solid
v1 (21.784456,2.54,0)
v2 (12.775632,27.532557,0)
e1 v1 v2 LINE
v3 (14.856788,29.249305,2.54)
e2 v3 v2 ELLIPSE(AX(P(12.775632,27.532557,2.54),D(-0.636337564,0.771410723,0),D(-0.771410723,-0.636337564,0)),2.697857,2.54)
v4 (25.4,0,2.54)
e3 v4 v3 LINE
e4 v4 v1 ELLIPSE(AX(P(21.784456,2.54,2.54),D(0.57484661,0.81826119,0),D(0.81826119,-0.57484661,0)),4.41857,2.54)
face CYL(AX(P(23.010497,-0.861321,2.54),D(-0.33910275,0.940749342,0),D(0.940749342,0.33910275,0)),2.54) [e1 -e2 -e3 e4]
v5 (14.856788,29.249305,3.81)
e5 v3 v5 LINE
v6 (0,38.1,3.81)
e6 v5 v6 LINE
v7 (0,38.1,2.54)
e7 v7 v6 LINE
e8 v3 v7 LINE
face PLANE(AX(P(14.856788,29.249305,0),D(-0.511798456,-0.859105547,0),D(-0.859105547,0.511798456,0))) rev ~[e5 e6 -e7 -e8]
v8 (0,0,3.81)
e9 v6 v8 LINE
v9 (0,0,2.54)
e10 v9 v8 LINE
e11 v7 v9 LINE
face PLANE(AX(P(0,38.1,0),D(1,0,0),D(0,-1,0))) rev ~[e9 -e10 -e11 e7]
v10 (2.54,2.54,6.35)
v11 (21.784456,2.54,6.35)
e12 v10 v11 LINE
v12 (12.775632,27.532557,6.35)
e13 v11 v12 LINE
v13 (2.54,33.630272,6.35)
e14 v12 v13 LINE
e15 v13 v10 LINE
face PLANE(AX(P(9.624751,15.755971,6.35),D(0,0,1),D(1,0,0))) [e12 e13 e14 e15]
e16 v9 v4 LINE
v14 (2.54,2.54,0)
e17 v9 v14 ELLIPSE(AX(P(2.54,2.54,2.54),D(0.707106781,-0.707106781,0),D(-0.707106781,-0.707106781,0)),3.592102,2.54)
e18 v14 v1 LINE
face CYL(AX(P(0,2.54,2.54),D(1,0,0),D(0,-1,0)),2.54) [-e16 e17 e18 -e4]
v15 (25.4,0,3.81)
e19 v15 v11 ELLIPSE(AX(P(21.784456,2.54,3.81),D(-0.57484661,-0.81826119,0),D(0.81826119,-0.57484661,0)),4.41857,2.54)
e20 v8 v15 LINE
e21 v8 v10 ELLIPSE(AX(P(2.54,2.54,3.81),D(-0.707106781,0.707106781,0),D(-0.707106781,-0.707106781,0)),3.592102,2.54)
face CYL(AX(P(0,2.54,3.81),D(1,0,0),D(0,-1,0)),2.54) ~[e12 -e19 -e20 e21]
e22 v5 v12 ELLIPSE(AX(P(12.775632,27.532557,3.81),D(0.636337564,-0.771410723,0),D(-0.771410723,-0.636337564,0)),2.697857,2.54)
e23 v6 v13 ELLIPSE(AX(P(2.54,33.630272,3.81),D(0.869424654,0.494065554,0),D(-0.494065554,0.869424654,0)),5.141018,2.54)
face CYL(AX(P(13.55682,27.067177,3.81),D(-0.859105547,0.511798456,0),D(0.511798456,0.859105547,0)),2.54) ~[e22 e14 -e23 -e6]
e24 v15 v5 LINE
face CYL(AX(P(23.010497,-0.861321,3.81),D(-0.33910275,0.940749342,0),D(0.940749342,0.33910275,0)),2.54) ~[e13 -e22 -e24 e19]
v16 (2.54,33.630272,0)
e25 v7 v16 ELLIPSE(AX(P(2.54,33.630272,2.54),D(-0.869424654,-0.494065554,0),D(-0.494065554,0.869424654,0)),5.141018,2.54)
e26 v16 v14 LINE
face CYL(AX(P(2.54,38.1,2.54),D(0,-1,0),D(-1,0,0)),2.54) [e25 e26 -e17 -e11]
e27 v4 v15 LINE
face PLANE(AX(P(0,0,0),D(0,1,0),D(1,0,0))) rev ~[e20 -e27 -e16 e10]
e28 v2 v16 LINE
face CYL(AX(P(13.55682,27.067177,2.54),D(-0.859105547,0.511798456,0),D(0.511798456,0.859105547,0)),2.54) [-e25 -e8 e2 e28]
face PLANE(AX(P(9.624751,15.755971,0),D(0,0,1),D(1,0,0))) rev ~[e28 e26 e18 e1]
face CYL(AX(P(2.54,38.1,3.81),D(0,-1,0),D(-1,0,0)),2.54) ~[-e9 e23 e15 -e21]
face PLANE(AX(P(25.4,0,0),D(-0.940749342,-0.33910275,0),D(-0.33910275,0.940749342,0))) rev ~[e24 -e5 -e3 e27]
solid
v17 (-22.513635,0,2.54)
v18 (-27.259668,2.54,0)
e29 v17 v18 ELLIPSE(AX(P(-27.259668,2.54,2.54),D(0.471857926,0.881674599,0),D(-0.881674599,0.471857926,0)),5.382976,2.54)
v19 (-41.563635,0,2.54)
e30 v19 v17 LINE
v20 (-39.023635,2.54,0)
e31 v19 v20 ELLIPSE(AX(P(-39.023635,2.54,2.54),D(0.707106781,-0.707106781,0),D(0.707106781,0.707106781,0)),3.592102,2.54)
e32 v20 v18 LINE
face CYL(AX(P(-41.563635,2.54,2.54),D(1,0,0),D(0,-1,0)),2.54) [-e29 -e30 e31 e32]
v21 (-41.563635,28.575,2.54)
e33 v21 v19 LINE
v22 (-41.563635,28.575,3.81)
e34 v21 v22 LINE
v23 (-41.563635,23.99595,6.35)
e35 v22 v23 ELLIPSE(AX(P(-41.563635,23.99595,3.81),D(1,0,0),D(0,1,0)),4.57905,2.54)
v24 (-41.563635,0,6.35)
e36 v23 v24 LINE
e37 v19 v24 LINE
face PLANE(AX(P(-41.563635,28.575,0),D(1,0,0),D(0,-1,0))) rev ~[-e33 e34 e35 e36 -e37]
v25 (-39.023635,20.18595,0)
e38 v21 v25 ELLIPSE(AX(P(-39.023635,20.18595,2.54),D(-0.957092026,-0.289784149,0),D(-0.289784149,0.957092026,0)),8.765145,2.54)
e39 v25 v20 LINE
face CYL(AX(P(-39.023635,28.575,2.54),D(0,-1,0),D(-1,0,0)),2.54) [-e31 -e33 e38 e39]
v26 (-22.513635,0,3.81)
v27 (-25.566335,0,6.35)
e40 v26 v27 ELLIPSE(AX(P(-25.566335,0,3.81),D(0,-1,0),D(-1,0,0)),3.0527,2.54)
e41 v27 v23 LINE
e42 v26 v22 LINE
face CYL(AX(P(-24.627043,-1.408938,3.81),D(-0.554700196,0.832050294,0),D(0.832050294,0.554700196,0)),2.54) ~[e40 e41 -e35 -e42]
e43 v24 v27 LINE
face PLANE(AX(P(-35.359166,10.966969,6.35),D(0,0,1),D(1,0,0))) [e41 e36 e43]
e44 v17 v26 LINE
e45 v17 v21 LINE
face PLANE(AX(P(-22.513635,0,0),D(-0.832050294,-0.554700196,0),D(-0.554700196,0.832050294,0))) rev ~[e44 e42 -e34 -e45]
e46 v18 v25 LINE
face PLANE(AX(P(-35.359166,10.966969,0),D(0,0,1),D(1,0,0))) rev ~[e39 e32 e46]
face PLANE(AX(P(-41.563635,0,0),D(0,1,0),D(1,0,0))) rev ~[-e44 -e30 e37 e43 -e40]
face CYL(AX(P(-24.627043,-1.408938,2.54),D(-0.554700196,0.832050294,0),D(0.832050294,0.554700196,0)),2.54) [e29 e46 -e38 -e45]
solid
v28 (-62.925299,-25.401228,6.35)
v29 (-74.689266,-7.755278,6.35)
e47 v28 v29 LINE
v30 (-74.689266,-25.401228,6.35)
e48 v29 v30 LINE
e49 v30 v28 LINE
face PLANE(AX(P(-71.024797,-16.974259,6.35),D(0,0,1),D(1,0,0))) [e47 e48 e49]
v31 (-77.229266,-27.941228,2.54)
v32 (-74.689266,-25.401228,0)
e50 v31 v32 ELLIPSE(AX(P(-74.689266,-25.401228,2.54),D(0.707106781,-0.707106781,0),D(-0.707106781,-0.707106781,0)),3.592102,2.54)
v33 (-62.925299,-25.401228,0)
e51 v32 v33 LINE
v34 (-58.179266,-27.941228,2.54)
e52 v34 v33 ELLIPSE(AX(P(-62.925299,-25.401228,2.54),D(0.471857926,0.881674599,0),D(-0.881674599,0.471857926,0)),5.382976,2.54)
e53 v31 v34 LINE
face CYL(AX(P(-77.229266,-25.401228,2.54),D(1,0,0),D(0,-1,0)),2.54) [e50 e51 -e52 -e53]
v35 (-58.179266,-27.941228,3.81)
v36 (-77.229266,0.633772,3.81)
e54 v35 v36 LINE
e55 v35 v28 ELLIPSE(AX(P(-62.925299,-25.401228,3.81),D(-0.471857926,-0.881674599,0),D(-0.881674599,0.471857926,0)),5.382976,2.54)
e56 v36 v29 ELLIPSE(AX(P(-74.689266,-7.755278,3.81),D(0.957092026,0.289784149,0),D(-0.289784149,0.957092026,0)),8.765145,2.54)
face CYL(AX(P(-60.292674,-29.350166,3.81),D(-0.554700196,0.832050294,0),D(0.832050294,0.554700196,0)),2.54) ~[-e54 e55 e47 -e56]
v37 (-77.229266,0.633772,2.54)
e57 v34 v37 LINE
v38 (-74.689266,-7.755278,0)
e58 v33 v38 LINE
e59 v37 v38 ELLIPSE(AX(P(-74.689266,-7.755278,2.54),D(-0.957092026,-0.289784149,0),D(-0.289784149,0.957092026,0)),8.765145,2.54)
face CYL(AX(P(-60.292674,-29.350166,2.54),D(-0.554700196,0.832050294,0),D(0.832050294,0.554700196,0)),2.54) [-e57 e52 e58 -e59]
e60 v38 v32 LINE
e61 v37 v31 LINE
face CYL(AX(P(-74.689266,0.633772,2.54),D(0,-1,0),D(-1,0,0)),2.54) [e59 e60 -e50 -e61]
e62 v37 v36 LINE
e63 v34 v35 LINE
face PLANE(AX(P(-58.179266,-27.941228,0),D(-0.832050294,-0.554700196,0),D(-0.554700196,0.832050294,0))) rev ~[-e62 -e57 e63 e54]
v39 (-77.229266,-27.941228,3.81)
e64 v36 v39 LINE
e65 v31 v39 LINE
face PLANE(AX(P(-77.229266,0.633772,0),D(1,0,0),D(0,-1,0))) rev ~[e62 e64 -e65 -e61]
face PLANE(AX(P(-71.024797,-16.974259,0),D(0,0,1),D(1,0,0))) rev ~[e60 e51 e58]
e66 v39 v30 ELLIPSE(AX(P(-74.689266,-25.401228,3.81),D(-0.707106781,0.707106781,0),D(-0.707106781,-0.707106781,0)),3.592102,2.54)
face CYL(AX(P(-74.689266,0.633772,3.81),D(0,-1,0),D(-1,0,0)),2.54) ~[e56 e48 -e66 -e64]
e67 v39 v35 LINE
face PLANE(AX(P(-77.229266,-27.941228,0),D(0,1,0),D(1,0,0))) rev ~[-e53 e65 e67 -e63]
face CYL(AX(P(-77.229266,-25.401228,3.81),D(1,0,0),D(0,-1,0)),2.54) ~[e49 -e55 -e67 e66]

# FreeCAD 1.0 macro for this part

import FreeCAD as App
import Part
import Sketcher
Q = App.Units.Quantity


def edges_at(feature, points):
    """Names of the edges that pass closest to the given points."""
    edges = feature.Shape.Edges
    near = lambda p: min(range(len(edges)), key=lambda i: edges[i].distToShape(Part.Vertex(*p))[0])
    return sorted({f"Edge{near(p) + 1}" for p in points})


def add_polygon(sketch, points):
    """Adds a closed chain of lines whose ends are joined by coincident constraints."""
    first, n = sketch.GeometryCount, len(points)
    for a, b in zip(points, points[1:] + points[:1]):
        sketch.addGeometry(Part.LineSegment(App.Vector(*a, 0), App.Vector(*b, 0)), False)
    for i in range(n):
        sketch.addConstraint(Sketcher.Constraint("Coincident", first + i, 2, first + (i + 1) % n, 1))

doc = App.newDocument("Part")
body = doc.addObject("PartDesign::Body", "Body")

sketch1 = body.newObject("Sketcher::SketchObject", "Sketch")
sketch1.AttachmentSupport = (doc.getObject("XY_Plane"), [""])
sketch1.MapMode = "FlatFace"
add_polygon(sketch1, [(0, 38), (0, 0), (25, 0), (15, 29)])
sketch1.addConstraint([
    Sketcher.Constraint("Vertical", 0),
    Sketcher.Constraint("Horizontal", 1),
    Sketcher.Constraint("Coincident", 0, 2, -1, 1),
    Sketcher.Constraint("DistanceX", 1, 1, 1, 2, Q("1 in")),
    Sketcher.Constraint("DistanceY", 0, 2, 0, 1, Q("1.5 in")),
    Sketcher.Constraint("Distance", 3, 17.293321),
    Sketcher.Constraint("DistanceX", 2, 2, 1, 2, 10.543212),
])
pad1 = body.newObject("PartDesign::Pad", "Pad")
pad1.Profile = sketch1
pad1.Length = Q("0.25 in")
doc.recompute()

fillet = body.newObject("PartDesign::Fillet", "Fillet")
fillet.Base = (pad1, edges_at(pad1, [
    (7.428, 33.675, 6.35),
    (0, 19.05, 6.35),
    (12.7, 0, 6.35),
    (20.128, 14.625, 6.35),
    (7.428, 33.675, 0),
    (0, 19.05, 0),
    (12.7, 0, 0),
    (20.128, 14.625, 0),
]))
fillet.Radius = Q("0.1 in")
body2 = doc.addObject("PartDesign::Body", "Body001")
body2.AllowCompound = True

sketch2 = body2.newObject("Sketcher::SketchObject", "Sketch001")
sketch2.AttachmentSupport = (doc.getObject("XY_Plane001"), [""])
sketch2.MapMode = "FlatFace"
add_polygon(sketch2, [(-42, 29), (-42, 0), (-23, 0)])
add_polygon(sketch2, [(-77, 1), (-77, -28), (-58, -28)])
sketch2.addConstraint([
    Sketcher.Constraint("Vertical", 0),
    Sketcher.Constraint("Horizontal", 1),
    Sketcher.Constraint("Vertical", 3),
    Sketcher.Constraint("Horizontal", 4),
    Sketcher.Constraint("PointOnObject", 0, 2, -1),
    Sketcher.Constraint("Parallel", 2, 5),
    Sketcher.Constraint("Equal", 1, 4),
    Sketcher.Constraint("DistanceX", 1, 1, 1, 2, Q("0.75 in")),
    Sketcher.Constraint("DistanceY", 0, 2, 0, 1, Q("1.125 in")),
    Sketcher.Constraint("DistanceX", 3, 2, 0, 2, 35.665631),
    Sketcher.Constraint("DistanceX", 0, 2, -1, 1, 41.563635),
    Sketcher.Constraint("DistanceY", 3, 2, -1, 1, 27.941228),
])
pad2 = body2.newObject("PartDesign::Pad", "Pad001")
pad2.Profile = sketch2
pad2.Length = Q("0.25 in")
doc.recompute()

fillet2 = body2.newObject("PartDesign::Fillet", "Fillet001")
fillet2.Base = (pad2, edges_at(pad2, [
    (-67.704, -13.654, 6.35),
    (-77.229, -13.654, 6.35),
    (-67.704, -27.941, 6.35),
    (-32.039, 14.287, 6.35),
    (-67.704, -13.654, 0),
    (-32.039, 14.287, 0),
    (-32.039, 0, 0),
    (-77.229, -13.654, 0),
    (-67.704, -27.941, 0),
    (-41.564, 14.287, 0),
]))
fillet2.Radius = Q("0.1 in")

doc.recompute()
